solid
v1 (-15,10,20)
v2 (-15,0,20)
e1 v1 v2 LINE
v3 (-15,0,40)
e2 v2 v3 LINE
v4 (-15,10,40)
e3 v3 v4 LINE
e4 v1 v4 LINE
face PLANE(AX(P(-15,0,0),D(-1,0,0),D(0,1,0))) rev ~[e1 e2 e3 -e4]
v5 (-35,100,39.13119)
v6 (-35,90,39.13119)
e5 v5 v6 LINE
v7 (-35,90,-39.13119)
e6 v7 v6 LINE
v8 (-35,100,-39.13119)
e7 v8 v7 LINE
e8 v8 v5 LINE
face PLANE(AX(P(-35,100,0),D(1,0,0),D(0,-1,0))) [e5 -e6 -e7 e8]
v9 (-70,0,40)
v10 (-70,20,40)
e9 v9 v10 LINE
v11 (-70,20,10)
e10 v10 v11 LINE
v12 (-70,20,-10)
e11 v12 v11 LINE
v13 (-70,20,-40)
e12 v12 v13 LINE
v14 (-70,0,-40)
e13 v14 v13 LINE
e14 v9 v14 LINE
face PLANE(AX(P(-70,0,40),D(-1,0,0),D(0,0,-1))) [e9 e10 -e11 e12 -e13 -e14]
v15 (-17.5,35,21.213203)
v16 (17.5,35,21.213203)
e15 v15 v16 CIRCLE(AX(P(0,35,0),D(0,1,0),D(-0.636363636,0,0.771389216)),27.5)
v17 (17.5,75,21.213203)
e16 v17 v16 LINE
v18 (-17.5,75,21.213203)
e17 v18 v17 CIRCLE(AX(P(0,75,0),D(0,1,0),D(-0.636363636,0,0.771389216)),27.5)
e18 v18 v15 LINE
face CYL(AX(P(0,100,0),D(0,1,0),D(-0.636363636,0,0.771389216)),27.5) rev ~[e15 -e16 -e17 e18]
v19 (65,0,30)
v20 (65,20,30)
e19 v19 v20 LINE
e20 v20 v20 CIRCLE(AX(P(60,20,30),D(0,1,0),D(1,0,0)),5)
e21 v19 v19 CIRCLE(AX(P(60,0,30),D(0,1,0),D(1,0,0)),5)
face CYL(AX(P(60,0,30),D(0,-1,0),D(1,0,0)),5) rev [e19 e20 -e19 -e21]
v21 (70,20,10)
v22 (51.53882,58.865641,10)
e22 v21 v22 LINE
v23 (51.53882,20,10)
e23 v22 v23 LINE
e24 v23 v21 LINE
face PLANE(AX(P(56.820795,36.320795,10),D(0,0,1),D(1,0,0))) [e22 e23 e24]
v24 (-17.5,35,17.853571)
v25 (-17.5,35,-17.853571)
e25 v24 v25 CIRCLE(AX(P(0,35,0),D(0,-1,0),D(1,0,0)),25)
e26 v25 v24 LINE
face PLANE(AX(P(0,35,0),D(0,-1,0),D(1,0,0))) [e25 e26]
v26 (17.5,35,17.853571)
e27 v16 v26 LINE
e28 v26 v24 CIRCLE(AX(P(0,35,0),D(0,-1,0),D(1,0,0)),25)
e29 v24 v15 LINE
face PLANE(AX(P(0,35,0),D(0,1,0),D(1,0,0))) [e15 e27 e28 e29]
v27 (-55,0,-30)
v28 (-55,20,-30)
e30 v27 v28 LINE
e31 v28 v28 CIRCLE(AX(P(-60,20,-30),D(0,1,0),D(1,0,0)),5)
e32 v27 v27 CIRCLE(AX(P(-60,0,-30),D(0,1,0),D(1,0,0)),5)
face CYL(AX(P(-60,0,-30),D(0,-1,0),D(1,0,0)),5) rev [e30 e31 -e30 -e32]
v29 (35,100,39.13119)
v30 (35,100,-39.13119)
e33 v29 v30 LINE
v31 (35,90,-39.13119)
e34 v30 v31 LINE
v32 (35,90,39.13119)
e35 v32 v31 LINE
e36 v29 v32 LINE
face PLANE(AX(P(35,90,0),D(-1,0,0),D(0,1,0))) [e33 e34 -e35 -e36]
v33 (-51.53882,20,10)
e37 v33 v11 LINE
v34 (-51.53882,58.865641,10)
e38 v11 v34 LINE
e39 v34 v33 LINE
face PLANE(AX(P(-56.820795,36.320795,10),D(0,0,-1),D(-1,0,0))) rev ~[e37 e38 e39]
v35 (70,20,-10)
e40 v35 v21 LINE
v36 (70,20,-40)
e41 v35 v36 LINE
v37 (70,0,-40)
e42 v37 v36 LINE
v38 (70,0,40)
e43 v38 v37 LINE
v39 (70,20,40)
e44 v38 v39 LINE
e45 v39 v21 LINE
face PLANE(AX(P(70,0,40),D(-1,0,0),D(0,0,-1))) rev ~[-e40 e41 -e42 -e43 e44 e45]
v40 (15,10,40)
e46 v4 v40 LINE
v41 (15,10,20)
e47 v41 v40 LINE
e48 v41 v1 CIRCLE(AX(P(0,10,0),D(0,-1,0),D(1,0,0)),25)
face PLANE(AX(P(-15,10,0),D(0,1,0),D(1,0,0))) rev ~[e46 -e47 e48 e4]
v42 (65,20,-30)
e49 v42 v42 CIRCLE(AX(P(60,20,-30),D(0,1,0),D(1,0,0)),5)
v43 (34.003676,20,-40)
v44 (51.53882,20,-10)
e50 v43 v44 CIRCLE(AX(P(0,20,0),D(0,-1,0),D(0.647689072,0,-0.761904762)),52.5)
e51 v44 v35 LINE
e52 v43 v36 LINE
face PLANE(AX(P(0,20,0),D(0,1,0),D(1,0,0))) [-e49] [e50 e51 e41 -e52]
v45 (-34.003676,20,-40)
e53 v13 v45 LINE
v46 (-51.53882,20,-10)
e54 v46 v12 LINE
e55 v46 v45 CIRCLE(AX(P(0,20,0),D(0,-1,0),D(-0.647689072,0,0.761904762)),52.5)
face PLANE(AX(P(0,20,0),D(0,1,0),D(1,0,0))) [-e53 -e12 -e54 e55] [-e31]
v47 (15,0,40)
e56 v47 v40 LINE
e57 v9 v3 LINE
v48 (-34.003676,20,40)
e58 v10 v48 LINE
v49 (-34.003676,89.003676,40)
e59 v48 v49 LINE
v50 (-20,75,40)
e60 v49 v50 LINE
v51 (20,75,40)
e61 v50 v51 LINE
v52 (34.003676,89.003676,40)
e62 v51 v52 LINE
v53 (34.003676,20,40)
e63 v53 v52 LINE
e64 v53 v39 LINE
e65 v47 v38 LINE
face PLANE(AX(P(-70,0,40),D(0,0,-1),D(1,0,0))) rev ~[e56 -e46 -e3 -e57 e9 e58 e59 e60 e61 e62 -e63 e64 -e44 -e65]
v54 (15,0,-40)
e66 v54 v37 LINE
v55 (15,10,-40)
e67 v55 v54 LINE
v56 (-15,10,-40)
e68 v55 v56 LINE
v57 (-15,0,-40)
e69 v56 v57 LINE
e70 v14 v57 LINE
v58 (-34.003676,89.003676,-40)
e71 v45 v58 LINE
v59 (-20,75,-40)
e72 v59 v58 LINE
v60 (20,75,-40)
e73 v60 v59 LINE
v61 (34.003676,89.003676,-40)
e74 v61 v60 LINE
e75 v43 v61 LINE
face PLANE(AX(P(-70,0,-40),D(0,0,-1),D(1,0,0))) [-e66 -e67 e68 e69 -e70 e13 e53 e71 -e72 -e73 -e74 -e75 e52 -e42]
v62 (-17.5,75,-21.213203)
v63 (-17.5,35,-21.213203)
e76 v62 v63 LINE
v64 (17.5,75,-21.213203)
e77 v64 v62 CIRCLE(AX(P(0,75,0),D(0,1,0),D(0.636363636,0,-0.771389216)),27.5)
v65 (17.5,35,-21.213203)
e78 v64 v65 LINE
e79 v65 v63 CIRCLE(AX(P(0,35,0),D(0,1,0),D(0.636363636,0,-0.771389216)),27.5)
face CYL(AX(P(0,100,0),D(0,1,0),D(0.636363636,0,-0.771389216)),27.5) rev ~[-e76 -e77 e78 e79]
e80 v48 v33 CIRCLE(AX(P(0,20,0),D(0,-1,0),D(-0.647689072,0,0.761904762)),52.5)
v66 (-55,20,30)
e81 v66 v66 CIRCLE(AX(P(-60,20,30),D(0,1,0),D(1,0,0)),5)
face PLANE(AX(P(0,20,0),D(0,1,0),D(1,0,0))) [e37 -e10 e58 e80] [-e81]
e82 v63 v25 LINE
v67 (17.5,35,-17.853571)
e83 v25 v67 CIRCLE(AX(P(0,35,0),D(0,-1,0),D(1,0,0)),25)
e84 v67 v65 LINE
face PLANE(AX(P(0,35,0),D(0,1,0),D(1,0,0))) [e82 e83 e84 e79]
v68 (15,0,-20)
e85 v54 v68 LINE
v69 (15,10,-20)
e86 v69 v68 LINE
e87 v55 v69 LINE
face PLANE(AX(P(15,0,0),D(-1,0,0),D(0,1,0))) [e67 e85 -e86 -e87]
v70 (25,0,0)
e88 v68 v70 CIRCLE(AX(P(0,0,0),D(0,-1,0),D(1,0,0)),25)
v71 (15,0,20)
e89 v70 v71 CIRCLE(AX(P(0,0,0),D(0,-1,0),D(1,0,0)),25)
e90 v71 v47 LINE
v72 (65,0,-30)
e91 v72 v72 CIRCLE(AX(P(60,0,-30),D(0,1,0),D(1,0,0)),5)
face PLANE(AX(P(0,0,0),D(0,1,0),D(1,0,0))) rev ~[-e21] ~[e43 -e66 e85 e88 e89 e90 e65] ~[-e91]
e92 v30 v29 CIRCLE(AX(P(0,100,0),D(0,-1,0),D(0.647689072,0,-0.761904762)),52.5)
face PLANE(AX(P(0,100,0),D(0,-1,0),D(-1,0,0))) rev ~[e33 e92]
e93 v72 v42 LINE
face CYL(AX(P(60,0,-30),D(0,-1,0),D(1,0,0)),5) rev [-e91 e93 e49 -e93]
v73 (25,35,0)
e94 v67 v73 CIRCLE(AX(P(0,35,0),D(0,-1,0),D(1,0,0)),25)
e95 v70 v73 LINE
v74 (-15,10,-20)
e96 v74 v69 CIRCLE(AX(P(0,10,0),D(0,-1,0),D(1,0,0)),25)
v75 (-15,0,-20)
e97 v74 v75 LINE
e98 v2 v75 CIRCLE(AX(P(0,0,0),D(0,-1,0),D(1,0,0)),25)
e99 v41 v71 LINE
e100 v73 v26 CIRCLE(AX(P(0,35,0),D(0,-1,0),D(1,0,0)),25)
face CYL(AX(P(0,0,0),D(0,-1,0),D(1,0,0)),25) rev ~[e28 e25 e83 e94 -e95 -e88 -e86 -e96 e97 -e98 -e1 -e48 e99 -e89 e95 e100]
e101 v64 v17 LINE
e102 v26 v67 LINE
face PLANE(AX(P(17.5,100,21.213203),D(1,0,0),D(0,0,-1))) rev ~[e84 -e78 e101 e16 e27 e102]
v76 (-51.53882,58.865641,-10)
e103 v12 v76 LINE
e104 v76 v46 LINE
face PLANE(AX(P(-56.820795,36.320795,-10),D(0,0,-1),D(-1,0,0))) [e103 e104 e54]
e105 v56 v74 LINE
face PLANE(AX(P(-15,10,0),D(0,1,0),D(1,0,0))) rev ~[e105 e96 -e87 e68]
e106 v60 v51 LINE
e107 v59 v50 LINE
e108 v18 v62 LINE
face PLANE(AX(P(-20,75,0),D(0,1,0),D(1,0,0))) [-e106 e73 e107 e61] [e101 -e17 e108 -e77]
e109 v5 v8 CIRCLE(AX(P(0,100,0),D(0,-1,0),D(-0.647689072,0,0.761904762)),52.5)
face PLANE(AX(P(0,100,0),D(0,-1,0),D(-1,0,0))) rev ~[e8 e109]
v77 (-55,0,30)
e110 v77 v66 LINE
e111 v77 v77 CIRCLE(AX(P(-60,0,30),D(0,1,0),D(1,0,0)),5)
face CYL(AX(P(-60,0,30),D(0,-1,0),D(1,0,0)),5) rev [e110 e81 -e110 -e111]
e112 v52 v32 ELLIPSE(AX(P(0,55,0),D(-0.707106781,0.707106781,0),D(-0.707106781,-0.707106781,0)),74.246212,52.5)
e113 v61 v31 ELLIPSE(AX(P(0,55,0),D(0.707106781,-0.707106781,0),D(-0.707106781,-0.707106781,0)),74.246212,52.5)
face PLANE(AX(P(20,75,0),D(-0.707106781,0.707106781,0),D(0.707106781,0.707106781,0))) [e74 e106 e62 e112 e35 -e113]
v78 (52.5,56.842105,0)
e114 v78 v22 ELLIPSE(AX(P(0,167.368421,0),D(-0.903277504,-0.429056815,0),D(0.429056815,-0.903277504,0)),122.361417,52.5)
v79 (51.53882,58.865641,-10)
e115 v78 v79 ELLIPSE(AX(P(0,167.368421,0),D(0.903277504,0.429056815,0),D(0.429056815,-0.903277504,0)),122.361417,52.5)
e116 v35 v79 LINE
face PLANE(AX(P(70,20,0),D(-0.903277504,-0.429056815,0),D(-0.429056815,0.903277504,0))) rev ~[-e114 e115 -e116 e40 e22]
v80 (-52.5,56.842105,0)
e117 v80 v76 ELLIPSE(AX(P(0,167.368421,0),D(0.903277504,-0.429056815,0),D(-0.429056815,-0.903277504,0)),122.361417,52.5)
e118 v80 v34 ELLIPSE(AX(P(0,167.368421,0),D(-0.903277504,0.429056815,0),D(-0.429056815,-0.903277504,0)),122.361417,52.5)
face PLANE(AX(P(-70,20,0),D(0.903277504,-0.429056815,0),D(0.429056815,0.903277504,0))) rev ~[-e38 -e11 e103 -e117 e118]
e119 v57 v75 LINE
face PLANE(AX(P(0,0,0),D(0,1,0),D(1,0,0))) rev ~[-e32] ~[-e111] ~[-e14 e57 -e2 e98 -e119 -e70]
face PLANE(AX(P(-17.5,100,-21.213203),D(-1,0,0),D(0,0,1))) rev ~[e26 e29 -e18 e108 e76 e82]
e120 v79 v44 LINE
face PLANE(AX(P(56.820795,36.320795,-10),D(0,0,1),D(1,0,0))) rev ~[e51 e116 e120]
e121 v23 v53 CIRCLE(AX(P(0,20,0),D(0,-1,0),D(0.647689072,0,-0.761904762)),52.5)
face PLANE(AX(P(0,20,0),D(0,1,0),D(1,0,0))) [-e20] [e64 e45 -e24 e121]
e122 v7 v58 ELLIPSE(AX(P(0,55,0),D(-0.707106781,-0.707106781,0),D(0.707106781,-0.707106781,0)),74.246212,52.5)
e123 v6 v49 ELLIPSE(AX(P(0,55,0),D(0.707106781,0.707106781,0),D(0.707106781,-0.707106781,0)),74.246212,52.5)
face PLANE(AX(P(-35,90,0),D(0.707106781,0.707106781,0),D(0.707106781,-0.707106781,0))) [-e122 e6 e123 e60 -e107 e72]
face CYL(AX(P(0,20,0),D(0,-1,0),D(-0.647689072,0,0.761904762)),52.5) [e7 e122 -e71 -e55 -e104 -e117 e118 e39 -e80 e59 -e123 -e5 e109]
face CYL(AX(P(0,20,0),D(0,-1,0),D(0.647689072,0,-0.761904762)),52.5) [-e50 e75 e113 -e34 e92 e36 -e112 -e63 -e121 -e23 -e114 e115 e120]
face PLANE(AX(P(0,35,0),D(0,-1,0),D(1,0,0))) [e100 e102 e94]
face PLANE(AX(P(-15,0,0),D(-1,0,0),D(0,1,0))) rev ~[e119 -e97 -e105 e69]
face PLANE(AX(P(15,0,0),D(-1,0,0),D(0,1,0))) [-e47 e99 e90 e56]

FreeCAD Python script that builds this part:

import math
import FreeCAD as App
import Part
import Sketcher

doc = App.newDocument("Part")
body = doc.addObject("PartDesign::Body", "Body")

# Sketch on XZ plane
sketch1 = body.newObject("Sketcher::SketchObject", "Sketch")
sketch1.AttachmentSupport = (doc.getObject("XZ_Plane"), [""])
sketch1.MapMode = "FlatFace"
sketch1.addGeometry(Part.LineSegment(App.Vector(-70, -40, 0), App.Vector(-70, 40, 0)), False)
sketch1.addGeometry(Part.LineSegment(App.Vector(-70, 40, 0), App.Vector(70, 40, 0)), False)
sketch1.addGeometry(Part.LineSegment(App.Vector(70, 40, 0), App.Vector(70, -40, 0)), False)
sketch1.addGeometry(Part.LineSegment(App.Vector(70, -40, 0), App.Vector(-70, -40, 0)), False)
sketch1.addGeometry(Part.Circle(App.Vector(-60, 30, 0), App.Vector(0, 0, 1), 5), False)
sketch1.addGeometry(Part.Circle(App.Vector(60, 30, 0), App.Vector(0, 0, 1), 5), False)
sketch1.addGeometry(Part.Circle(App.Vector(-60, -30, 0), App.Vector(0, 0, 1), 5), False)
sketch1.addGeometry(Part.Circle(App.Vector(60, -30, 0), App.Vector(0, 0, 1), 5), False)
sketch1.addConstraint(Sketcher.Constraint("Coincident", 0, 2, 1, 1))
sketch1.addConstraint(Sketcher.Constraint("Coincident", 1, 2, 2, 1))
sketch1.addConstraint(Sketcher.Constraint("Coincident", 2, 2, 3, 1))
sketch1.addConstraint(Sketcher.Constraint("Coincident", 3, 2, 0, 1))
sketch1.addConstraint(Sketcher.Constraint("Vertical", 0))
sketch1.addConstraint(Sketcher.Constraint("Horizontal", 1))
sketch1.addConstraint(Sketcher.Constraint("Vertical", 2))
sketch1.addConstraint(Sketcher.Constraint("Horizontal", 3))
sketch1.addConstraint(Sketcher.Constraint("Equal", 4, 5))
sketch1.addConstraint(Sketcher.Constraint("Equal", 5, 6))
sketch1.addConstraint(Sketcher.Constraint("Equal", 6, 7))
sketch1.addConstraint(Sketcher.Constraint("Symmetric", 5, 3, 6, 3, -1, 1))
sketch1.addConstraint(Sketcher.Constraint("Symmetric", 4, 3, 7, 3, -1, 1))
sketch1.addConstraint(Sketcher.Constraint("Symmetric", 0, 2, 2, 2, -1, 1))
sketch1.addConstraint(Sketcher.Constraint("Symmetric", 4, 3, 5, 3, -2))
sketch1.addConstraint(Sketcher.Constraint("Diameter", 4, 10.0))
sketch1.addConstraint(Sketcher.Constraint("DistanceX", 1, 1, 1, 2, 140.0))
sketch1.addConstraint(Sketcher.Constraint("DistanceY", 0, 1, 0, 2, 80.0))
sketch1.addConstraint(Sketcher.Constraint("DistanceX", 4, 3, -1, 1, 60.0))
sketch1.addConstraint(Sketcher.Constraint("DistanceY", -1, 1, 4, 3, 30.0))
pad1 = body.newObject("PartDesign::Pad", "Pad")
pad1.Profile = sketch1
pad1.Length = 20
pad1.Reversed = True

# Sketch on XZ plane
sketch2 = body.newObject("Sketcher::SketchObject", "Sketch001")
sketch2.AttachmentSupport = (doc.getObject("XZ_Plane"), [""])
sketch2.MapMode = "FlatFace"
sketch2.AttachmentOffset = App.Placement(App.Vector(0, 0, -20), App.Rotation())
sketch2.addGeometry(Part.LineSegment(App.Vector(34, -40, 0), App.Vector(-34, -40, 0)), False)
sketch2.addGeometry(Part.ArcOfCircle(Part.Circle(App.Vector(0, 0, 0), App.Vector(0, 0, 1), 52), math.radians(130), math.radians(230)), False)
sketch2.addGeometry(Part.LineSegment(App.Vector(-34, 40, 0), App.Vector(34, 40, 0)), False)
sketch2.addGeometry(Part.ArcOfCircle(Part.Circle(App.Vector(0, 0, 0), App.Vector(0, 0, 1), 52), math.radians(-50), math.radians(50)), False)
sketch2.addConstraint(Sketcher.Constraint("Coincident", 0, 2, 1, 2))
sketch2.addConstraint(Sketcher.Constraint("Coincident", 1, 1, 2, 1))
sketch2.addConstraint(Sketcher.Constraint("Coincident", 2, 2, 3, 2))
sketch2.addConstraint(Sketcher.Constraint("Coincident", 3, 1, 0, 1))
sketch2.addConstraint(Sketcher.Constraint("Horizontal", 0))
sketch2.addConstraint(Sketcher.Constraint("Horizontal", 2))
sketch2.addConstraint(Sketcher.Constraint("Coincident", 1, 3, -1, 1))
sketch2.addConstraint(Sketcher.Constraint("Coincident", 3, 3, -1, 1))
sketch2.addConstraint(Sketcher.Constraint("Equal", 1, 3))
sketch2.addConstraint(Sketcher.Constraint("Vertical", 0, 2, 1, 1))
sketch2.addConstraint(Sketcher.Constraint("Radius", 1, 52.5))
sketch2.addConstraint(Sketcher.Constraint("DistanceY", 0, 2, -1, 1, 40.0))
pad2 = body.newObject("PartDesign::Pad", "Pad001")
pad2.Profile = sketch2
pad2.Length = 80
pad2.Reversed = True

# Sketch on XZ plane
sketch3 = body.newObject("Sketcher::SketchObject", "Sketch002")
sketch3.AttachmentSupport = (doc.getObject("XZ_Plane"), [""])
sketch3.MapMode = "FlatFace"
sketch3.AttachmentOffset = App.Placement(App.Vector(0, 0, -100), App.Rotation())
sketch3.addGeometry(Part.LineSegment(App.Vector(18, 21, 0), App.Vector(18, -21, 0)), False)
sketch3.addGeometry(Part.ArcOfCircle(Part.Circle(App.Vector(0, 0, 0), App.Vector(0, 0, 1), 28), math.radians(-130), math.radians(-50)), False)
sketch3.addGeometry(Part.LineSegment(App.Vector(-18, -21, 0), App.Vector(-18, 21, 0)), False)
sketch3.addGeometry(Part.ArcOfCircle(Part.Circle(App.Vector(0, 0, 0), App.Vector(0, 0, 1), 28), math.radians(50), math.radians(130)), False)
sketch3.addConstraint(Sketcher.Constraint("Coincident", 0, 2, 1, 2))
sketch3.addConstraint(Sketcher.Constraint("Coincident", 1, 1, 2, 1))
sketch3.addConstraint(Sketcher.Constraint("Coincident", 2, 2, 3, 2))
sketch3.addConstraint(Sketcher.Constraint("Coincident", 3, 1, 0, 1))
sketch3.addConstraint(Sketcher.Constraint("Vertical", 0))
sketch3.addConstraint(Sketcher.Constraint("Vertical", 2))
sketch3.addConstraint(Sketcher.Constraint("Coincident", 1, 3, -1, 1))
sketch3.addConstraint(Sketcher.Constraint("Coincident", 3, 3, -1, 1))
sketch3.addConstraint(Sketcher.Constraint("Equal", 1, 3))
sketch3.addConstraint(Sketcher.Constraint("Horizontal", 0, 2, 1, 1))
sketch3.addConstraint(Sketcher.Constraint("Radius", 1, 27.5))
sketch3.addConstraint(Sketcher.Constraint("DistanceX", 1, 1, 0, 2, 35.0))
pocket1 = body.newObject("PartDesign::Pocket", "Pocket")
pocket1.Profile = sketch3
pocket1.Length = 65
pocket1.Reversed = True

# Sketch on XY plane
sketch4 = body.newObject("Sketcher::SketchObject", "Sketch003")
sketch4.AttachmentSupport = (doc.getObject("XY_Plane"), [""])
sketch4.MapMode = "FlatFace"
sketch4.addGeometry(Part.LineSegment(App.Vector(-20, 75, 0), App.Vector(20, 75, 0)), False)
sketch4.addGeometry(Part.LineSegment(App.Vector(20, 75, 0), App.Vector(35, 90, 0)), False)
sketch4.addGeometry(Part.LineSegment(App.Vector(35, 90, 0), App.Vector(35, 100, 0)), False)
sketch4.addGeometry(Part.LineSegment(App.Vector(35, 100, 0), App.Vector(-35, 100, 0)), False)
sketch4.addGeometry(Part.LineSegment(App.Vector(-35, 100, 0), App.Vector(-35, 90, 0)), False)
sketch4.addGeometry(Part.LineSegment(App.Vector(-35, 90, 0), App.Vector(-20, 75, 0)), False)
sketch4.addConstraint(Sketcher.Constraint("Coincident", 0, 2, 1, 1))
sketch4.addConstraint(Sketcher.Constraint("Coincident", 1, 2, 2, 1))
sketch4.addConstraint(Sketcher.Constraint("Coincident", 2, 2, 3, 1))
sketch4.addConstraint(Sketcher.Constraint("Coincident", 3, 2, 4, 1))
sketch4.addConstraint(Sketcher.Constraint("Coincident", 4, 2, 5, 1))
sketch4.addConstraint(Sketcher.Constraint("Coincident", 5, 2, 0, 1))
sketch4.addConstraint(Sketcher.Constraint("Horizontal", 0))
sketch4.addConstraint(Sketcher.Constraint("Vertical", 2))
sketch4.addConstraint(Sketcher.Constraint("Horizontal", 3))
sketch4.addConstraint(Sketcher.Constraint("Vertical", 4))
sketch4.addConstraint(Sketcher.Constraint("Symmetric", 1, 2, 4, 2, -2))
sketch4.addConstraint(Sketcher.Constraint("Perpendicular", 1, 5))
sketch4.addConstraint(Sketcher.Constraint("Equal", 1, 5))
sketch4.addConstraint(Sketcher.Constraint("DistanceX", 0, 1, 0, 2, 40.0))
sketch4.addConstraint(Sketcher.Constraint("DistanceX", 3, 2, 3, 1, 70.0))
sketch4.addConstraint(Sketcher.Constraint("DistanceY", 2, 1, 2, 2, 10.0))
sketch4.addConstraint(Sketcher.Constraint("DistanceY", -1, 1, 0, 2, 75.0))
pocket2 = body.newObject("PartDesign::Pocket", "Pocket001")
pocket2.Profile = sketch4
pocket2.Type = "ThroughAll"
pocket2.Midplane = True

# Sketch on XY plane
sketch5 = body.newObject("Sketcher::SketchObject", "Sketch004")
sketch5.AttachmentSupport = (doc.getObject("XY_Plane"), [""])
sketch5.MapMode = "FlatFace"
sketch5.addGeometry(Part.LineSegment(App.Vector(-15, 10, 0), App.Vector(-15, 0, 0)), False)
sketch5.addGeometry(Part.LineSegment(App.Vector(-15, 0, 0), App.Vector(15, 0, 0)), False)
sketch5.addGeometry(Part.LineSegment(App.Vector(15, 0, 0), App.Vector(15, 10, 0)), False)
sketch5.addGeometry(Part.LineSegment(App.Vector(15, 10, 0), App.Vector(-15, 10, 0)), False)
sketch5.addConstraint(Sketcher.Constraint("Coincident", 0, 2, 1, 1))
sketch5.addConstraint(Sketcher.Constraint("Coincident", 1, 2, 2, 1))
sketch5.addConstraint(Sketcher.Constraint("Coincident", 2, 2, 3, 1))
sketch5.addConstraint(Sketcher.Constraint("Coincident", 3, 2, 0, 1))
sketch5.addConstraint(Sketcher.Constraint("Vertical", 0))
sketch5.addConstraint(Sketcher.Constraint("Horizontal", 1))
sketch5.addConstraint(Sketcher.Constraint("Vertical", 2))
sketch5.addConstraint(Sketcher.Constraint("Horizontal", 3))
sketch5.addConstraint(Sketcher.Constraint("Symmetric", 0, 2, 1, 2, -1, 1))
sketch5.addConstraint(Sketcher.Constraint("DistanceX", 1, 1, 1, 2, 30.0))
sketch5.addConstraint(Sketcher.Constraint("DistanceY", 0, 2, 0, 1, 10.0))
pocket3 = body.newObject("PartDesign::Pocket", "Pocket002")
pocket3.Profile = sketch5
pocket3.Type = "ThroughAll"
pocket3.Midplane = True

# Sketch on XZ plane
sketch6 = body.newObject("Sketcher::SketchObject", "Sketch005")
sketch6.AttachmentSupport = (doc.getObject("XZ_Plane"), [""])
sketch6.MapMode = "FlatFace"
sketch6.addGeometry(Part.Circle(App.Vector(0, 0, 0), App.Vector(0, 0, 1), 25), False)
sketch6.addConstraint(Sketcher.Constraint("Coincident", 0, 3, -1, 1))
sketch6.addConstraint(Sketcher.Constraint("Diameter", 0, 50.0))
pocket4 = body.newObject("PartDesign::Pocket", "Pocket003")
pocket4.Profile = sketch6
pocket4.Length = 35

# Sketch on XY plane
sketch7 = body.newObject("Sketcher::SketchObject", "Sketch006")
sketch7.AttachmentSupport = (doc.getObject("XY_Plane"), [""])
sketch7.MapMode = "FlatFace"
sketch7.addGeometry(Part.LineSegment(App.Vector(-51, 60, 0), App.Vector(-70, 20, 0)), False)
sketch7.addGeometry(Part.LineSegment(App.Vector(-70, 20, 0), App.Vector(-51, 20, 0)), False)
sketch7.addGeometry(Part.LineSegment(App.Vector(-51, 20, 0), App.Vector(-51, 60, 0)), False)
sketch7.addGeometry(Part.LineSegment(App.Vector(51, 60, 0), App.Vector(51, 20, 0)), False)
sketch7.addGeometry(Part.LineSegment(App.Vector(51, 20, 0), App.Vector(70, 20, 0)), False)
sketch7.addGeometry(Part.LineSegment(App.Vector(70, 20, 0), App.Vector(51, 60, 0)), False)
sketch7.addConstraint(Sketcher.Constraint("Coincident", 0, 2, 1, 1))
sketch7.addConstraint(Sketcher.Constraint("Coincident", 1, 2, 2, 1))
sketch7.addConstraint(Sketcher.Constraint("Coincident", 2, 2, 0, 1))
sketch7.addConstraint(Sketcher.Constraint("Coincident", 3, 2, 4, 1))
sketch7.addConstraint(Sketcher.Constraint("Coincident", 4, 2, 5, 1))
sketch7.addConstraint(Sketcher.Constraint("Coincident", 5, 2, 3, 1))
sketch7.addConstraint(Sketcher.Constraint("Horizontal", 1))
sketch7.addConstraint(Sketcher.Constraint("Vertical", 2))
sketch7.addConstraint(Sketcher.Constraint("Vertical", 3))
sketch7.addConstraint(Sketcher.Constraint("Horizontal", 4))
sketch7.addConstraint(Sketcher.Constraint("Symmetric", 1, 2, 3, 2, -2))
sketch7.addConstraint(Sketcher.Constraint("Horizontal", 2, 2, 5, 2))
sketch7.addConstraint(Sketcher.Constraint("Equal", 1, 4))
sketch7.addConstraint(Sketcher.Constraint("DistanceX", 1, 1, 1, 2, 19.0))
sketch7.addConstraint(Sketcher.Constraint("DistanceY", 2, 1, 2, 2, 40.0))
sketch7.addConstraint(Sketcher.Constraint("DistanceX", 0, 2, -1, 1, 70.0))
sketch7.addConstraint(Sketcher.Constraint("DistanceY", -1, 1, 0, 2, 20.0))
pad3 = body.newObject("PartDesign::Pad", "Pad002")
pad3.Profile = sketch7
pad3.Type = "TwoLengths"
pad3.Length = 10
pad3.Length2 = 10

doc.recompute()
